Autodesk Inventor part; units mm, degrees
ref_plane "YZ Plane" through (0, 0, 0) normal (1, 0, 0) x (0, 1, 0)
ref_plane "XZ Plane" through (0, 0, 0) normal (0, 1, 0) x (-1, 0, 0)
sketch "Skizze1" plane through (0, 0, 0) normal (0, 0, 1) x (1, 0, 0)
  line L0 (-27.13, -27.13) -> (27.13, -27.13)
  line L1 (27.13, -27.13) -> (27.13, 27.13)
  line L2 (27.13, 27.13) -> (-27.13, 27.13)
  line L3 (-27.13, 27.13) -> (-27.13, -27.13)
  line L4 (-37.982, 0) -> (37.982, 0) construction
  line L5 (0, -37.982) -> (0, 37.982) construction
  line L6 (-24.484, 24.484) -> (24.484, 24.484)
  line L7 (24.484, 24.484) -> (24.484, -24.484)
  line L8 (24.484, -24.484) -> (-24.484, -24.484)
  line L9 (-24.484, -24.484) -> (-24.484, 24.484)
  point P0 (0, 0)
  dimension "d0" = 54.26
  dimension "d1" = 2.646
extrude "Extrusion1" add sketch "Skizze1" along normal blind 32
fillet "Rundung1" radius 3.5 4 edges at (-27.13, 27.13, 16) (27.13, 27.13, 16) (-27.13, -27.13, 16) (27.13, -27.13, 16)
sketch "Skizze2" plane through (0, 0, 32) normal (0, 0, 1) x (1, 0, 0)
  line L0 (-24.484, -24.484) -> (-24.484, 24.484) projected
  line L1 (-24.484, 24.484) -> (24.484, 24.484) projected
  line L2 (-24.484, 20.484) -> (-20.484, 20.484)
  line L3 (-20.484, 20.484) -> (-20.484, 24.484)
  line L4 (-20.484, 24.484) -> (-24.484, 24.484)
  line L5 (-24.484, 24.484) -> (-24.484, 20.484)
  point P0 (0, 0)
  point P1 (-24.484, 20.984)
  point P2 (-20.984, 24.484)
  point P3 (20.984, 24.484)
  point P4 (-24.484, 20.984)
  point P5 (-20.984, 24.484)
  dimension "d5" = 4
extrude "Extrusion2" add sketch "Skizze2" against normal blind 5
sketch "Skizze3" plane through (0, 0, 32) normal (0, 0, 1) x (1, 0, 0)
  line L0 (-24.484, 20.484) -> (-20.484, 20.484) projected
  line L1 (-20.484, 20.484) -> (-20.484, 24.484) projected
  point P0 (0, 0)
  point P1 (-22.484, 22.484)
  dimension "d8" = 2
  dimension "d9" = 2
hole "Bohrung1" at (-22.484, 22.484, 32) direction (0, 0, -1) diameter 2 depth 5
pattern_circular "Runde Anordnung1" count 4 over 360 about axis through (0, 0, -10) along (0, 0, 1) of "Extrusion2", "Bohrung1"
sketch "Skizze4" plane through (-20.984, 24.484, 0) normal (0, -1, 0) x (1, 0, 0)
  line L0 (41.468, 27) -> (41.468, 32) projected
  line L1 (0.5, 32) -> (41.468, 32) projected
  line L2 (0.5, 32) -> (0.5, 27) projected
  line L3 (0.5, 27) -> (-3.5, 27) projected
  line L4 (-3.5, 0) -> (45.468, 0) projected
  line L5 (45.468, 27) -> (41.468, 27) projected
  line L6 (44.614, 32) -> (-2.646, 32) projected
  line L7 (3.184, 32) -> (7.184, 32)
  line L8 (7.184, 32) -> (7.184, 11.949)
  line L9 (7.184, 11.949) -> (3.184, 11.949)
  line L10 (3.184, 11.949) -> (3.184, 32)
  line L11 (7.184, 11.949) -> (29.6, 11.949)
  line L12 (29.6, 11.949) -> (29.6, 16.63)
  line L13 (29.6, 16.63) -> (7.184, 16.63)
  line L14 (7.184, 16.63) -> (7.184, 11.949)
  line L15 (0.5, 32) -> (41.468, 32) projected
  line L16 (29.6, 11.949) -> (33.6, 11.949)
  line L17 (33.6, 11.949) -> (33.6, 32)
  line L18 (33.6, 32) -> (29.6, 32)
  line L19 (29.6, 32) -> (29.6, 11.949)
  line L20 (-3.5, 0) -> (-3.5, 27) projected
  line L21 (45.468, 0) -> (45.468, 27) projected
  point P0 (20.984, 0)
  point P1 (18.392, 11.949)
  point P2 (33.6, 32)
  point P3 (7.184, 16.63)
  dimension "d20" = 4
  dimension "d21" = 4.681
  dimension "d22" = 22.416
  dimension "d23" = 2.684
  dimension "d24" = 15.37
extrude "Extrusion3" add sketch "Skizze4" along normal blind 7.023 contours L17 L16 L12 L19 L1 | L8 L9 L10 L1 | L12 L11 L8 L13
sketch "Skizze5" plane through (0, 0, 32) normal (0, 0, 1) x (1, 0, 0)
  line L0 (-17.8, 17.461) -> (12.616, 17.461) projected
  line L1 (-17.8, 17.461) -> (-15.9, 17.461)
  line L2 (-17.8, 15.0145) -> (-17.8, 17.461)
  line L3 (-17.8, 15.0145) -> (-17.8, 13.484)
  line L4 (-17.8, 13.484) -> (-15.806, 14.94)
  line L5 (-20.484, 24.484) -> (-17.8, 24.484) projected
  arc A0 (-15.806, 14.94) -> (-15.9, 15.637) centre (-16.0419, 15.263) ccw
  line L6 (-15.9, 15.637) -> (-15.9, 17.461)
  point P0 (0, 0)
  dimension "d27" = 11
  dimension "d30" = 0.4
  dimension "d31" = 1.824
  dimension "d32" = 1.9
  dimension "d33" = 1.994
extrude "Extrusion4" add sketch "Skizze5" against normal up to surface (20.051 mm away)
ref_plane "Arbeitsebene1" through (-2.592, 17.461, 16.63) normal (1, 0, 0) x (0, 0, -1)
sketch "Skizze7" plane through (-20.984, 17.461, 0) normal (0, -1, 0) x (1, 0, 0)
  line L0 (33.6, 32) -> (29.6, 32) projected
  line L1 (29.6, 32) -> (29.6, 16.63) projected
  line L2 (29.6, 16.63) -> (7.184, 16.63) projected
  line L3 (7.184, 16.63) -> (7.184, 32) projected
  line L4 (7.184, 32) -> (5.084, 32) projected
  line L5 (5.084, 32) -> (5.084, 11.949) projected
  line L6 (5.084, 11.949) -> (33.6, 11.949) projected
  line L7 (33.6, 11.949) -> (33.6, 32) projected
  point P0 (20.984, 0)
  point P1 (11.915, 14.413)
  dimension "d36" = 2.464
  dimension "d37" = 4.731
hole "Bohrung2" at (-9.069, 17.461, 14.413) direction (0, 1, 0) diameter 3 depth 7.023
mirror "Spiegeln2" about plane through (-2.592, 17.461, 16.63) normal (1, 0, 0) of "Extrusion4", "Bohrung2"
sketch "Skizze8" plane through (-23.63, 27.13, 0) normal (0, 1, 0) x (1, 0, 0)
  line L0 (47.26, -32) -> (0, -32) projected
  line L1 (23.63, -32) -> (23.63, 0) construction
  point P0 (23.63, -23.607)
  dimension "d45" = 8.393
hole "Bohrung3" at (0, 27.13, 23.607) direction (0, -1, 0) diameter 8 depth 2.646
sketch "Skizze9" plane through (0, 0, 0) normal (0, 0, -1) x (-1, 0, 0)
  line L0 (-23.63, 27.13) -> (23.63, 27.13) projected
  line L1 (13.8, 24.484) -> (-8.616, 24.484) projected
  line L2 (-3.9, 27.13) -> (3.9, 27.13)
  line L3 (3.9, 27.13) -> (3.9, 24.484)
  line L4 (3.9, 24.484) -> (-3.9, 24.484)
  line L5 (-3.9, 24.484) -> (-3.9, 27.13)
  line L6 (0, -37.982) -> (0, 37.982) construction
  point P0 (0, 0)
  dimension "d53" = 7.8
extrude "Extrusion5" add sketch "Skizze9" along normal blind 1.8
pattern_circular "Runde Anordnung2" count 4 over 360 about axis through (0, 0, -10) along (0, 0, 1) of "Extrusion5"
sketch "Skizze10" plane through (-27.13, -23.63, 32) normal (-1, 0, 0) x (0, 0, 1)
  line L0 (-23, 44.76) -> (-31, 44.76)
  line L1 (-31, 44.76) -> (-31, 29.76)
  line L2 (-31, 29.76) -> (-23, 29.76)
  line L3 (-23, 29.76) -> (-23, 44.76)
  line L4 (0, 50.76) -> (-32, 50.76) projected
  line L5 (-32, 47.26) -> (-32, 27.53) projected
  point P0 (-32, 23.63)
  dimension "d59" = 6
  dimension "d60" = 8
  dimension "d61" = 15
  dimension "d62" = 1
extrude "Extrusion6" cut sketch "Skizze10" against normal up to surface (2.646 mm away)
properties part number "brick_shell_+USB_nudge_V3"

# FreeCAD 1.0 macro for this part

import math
import FreeCAD as App
import Part
import Sketcher
from FreeCAD import Vector
Q = App.Units.Quantity


def edges_at(feature, points):
    """Names of the edges that pass closest to the given points."""
    edges = feature.Shape.Edges
    near = lambda p: min(range(len(edges)), key=lambda i: edges[i].distToShape(Part.Vertex(*p))[0])
    return sorted({f"Edge{near(p) + 1}" for p in points})


def add_polygon(sketch, points):
    """Adds a closed chain of lines whose ends are joined by coincident constraints."""
    first, n = sketch.GeometryCount, len(points)
    for a, b in zip(points, points[1:] + points[:1]):
        sketch.addGeometry(Part.LineSegment(App.Vector(*a, 0), App.Vector(*b, 0)), False)
    for i in range(n):
        sketch.addConstraint(Sketcher.Constraint("Coincident", first + i, 2, first + (i + 1) % n, 1))

doc = App.newDocument("Part")
body = doc.addObject("PartDesign::Body", "Body")

# Sketch on XY plane
sketch1 = body.newObject("Sketcher::SketchObject", "Sketch")
sketch1.AttachmentSupport = (doc.getObject("XY_Plane"), [""])
sketch1.MapMode = "FlatFace"
add_polygon(sketch1, [(-27.13, 27.13), (-27.13, -27.13), (27.13, -27.13), (27.13, 27.13)])  # lines 0-3
add_polygon(sketch1, [(-24.484, -24.484), (-24.484, 24.484), (24.484, 24.484), (24.484, -24.484)])  # lines 4-7
sketch1.addConstraint(Sketcher.Constraint("Vertical", 0))
sketch1.addConstraint(Sketcher.Constraint("Horizontal", 1))
sketch1.addConstraint(Sketcher.Constraint("Vertical", 2))
sketch1.addConstraint(Sketcher.Constraint("Horizontal", 3))
sketch1.addConstraint(Sketcher.Constraint("Vertical", 4))
sketch1.addConstraint(Sketcher.Constraint("Horizontal", 5))
sketch1.addConstraint(Sketcher.Constraint("Vertical", 6))
sketch1.addConstraint(Sketcher.Constraint("Horizontal", 7))
sketch1.addConstraint(Sketcher.Constraint("Symmetric", 0, 2, 2, 2, -1, 1))
sketch1.addConstraint(Sketcher.Constraint("Symmetric", 4, 2, 6, 2, -1, 1))
sketch1.addConstraint(Sketcher.Constraint("Equal", 3, 0))
sketch1.addConstraint(Sketcher.Constraint("Equal", 7, 4))
sketch1.addConstraint(Sketcher.Constraint("DistanceX", 1, 1, 1, 2, Q("54.26 mm")))
sketch1.addConstraint(Sketcher.Constraint("DistanceX", 3, 2, 4, 2, Q("2.646 mm")))
pad1 = body.newObject("PartDesign::Pad", "Pad")
pad1.Profile = sketch1
pad1.Length = 32
doc.recompute()

fillet = body.newObject("PartDesign::Fillet", "Fillet")
fillet.Base = (pad1, edges_at(pad1, [
    (-27.13, 27.13, 16),
    (27.13, 27.13, 16),
    (-27.13, -27.13, 16),
    (27.13, -27.13, 16),
]))
fillet.Radius = 3.5

# Sketch on XY plane
sketch2 = body.newObject("Sketcher::SketchObject", "Sketch001")
sketch2.AttachmentSupport = (doc.getObject("XY_Plane"), [""])
sketch2.MapMode = "FlatFace"
sketch2.AttachmentOffset = App.Placement(Vector(0, 0, 32), App.Rotation())
add_polygon(sketch2, [(-24.484, 24.484), (-24.484, 20.484), (-20.484, 20.484), (-20.484, 24.484)])  # lines 0-3
sketch2.addConstraint(Sketcher.Constraint("Vertical", 0))
sketch2.addConstraint(Sketcher.Constraint("Horizontal", 1))
sketch2.addConstraint(Sketcher.Constraint("Vertical", 2))
sketch2.addConstraint(Sketcher.Constraint("Horizontal", 3))
sketch2.addConstraint(Sketcher.Constraint("Equal", 3, 0))
sketch2.addConstraint(Sketcher.Constraint("DistanceX", 1, 1, 1, 2, Q("4 mm")))
sketch2.addConstraint(Sketcher.Constraint("DistanceX", 0, 2, -1, 1, Q("24.484 mm")))
sketch2.addConstraint(Sketcher.Constraint("DistanceY", -1, 1, 0, 2, Q("20.484 mm")))
pad2 = body.newObject("PartDesign::Pad", "Pad001")
pad2.Profile = sketch2
pad2.Length = 5
pad2.Reversed = True

# Sketch on XY plane
sketch3 = body.newObject("Sketcher::SketchObject", "Sketch002")
sketch3.AttachmentSupport = (doc.getObject("XY_Plane"), [""])
sketch3.MapMode = "FlatFace"
sketch3.AttachmentOffset = App.Placement(Vector(0, 0, 32), App.Rotation())
sketch3.addGeometry(Part.Circle(Vector(-22.484, 22.484, 0), Vector(0, 0, 1), 1), False)
sketch3.addConstraint(Sketcher.Constraint("Diameter", 0, Q("2 mm")))
sketch3.addConstraint(Sketcher.Constraint("DistanceX", 0, 3, -1, 1, Q("22.484 mm")))
sketch3.addConstraint(Sketcher.Constraint("DistanceY", -1, 1, 0, 3, Q("22.484 mm")))
doc.recompute()
hole = body.newObject("PartDesign::Hole", "Hole")
hole.Profile = sketch3
hole.ThreadType = "None"
hole.Diameter = 2
hole.DepthType = "Dimension"
hole.Depth = 5
hole.DrillPoint = "Flat"
doc.recompute()

polarpattern = body.newObject("PartDesign::PolarPattern", "PolarPattern")
polarpattern.Originals = [pad2, hole]
polarpattern.Axis = (doc.getObject("Z_Axis"), [""])
polarpattern.Angle = 360
polarpattern.Occurrences = 4
body.Tip = polarpattern

# Sketch on XZ plane
sketch4 = body.newObject("Sketcher::SketchObject", "Sketch003")
sketch4.AttachmentSupport = (doc.getObject("XZ_Plane"), [""])
sketch4.MapMode = "FlatFace"
sketch4.AttachmentOffset = App.Placement(Vector(0, 0, -24.484), App.Rotation())
add_polygon(sketch4, [(12.616, 11.949), (12.616, 32), (8.616, 32), (8.616, 16.63), (-13.8, 16.63), (-13.8, 32), (-17.8, 32), (-17.8, 11.949)])  # lines 0-7
sketch4.addConstraint(Sketcher.Constraint("Vertical", 0))
sketch4.addConstraint(Sketcher.Constraint("Horizontal", 1))
sketch4.addConstraint(Sketcher.Constraint("Vertical", 2))
sketch4.addConstraint(Sketcher.Constraint("Horizontal", 3))
sketch4.addConstraint(Sketcher.Constraint("Vertical", 4))
sketch4.addConstraint(Sketcher.Constraint("Horizontal", 5))
sketch4.addConstraint(Sketcher.Constraint("Vertical", 6))
sketch4.addConstraint(Sketcher.Constraint("Horizontal", 7))
sketch4.addConstraint(Sketcher.Constraint("Horizontal", 1, 2, 4, 2))
sketch4.addConstraint(Sketcher.Constraint("Equal", 1, 5))
sketch4.addConstraint(Sketcher.Constraint("DistanceX", 1, 2, 1, 1, Q("4 mm")))
sketch4.addConstraint(Sketcher.Constraint("DistanceY", 2, 2, 2, 1, Q("15.37 mm")))
sketch4.addConstraint(Sketcher.Constraint("DistanceX", 3, 2, 3, 1, Q("22.416 mm")))
sketch4.addConstraint(Sketcher.Constraint("DistanceY", -1, 1, 0, 2, Q("32 mm")))
sketch4.addConstraint(Sketcher.Constraint("DistanceY", 6, 2, 3, 2, Q("4.681 mm")))
sketch4.addConstraint(Sketcher.Constraint("DistanceX", 3, 2, -1, 1, Q("13.8 mm")))
pad3 = body.newObject("PartDesign::Pad", "Pad002")
pad3.Profile = sketch4
pad3.Length = 7.023

# Sketch on XY plane
sketch5 = body.newObject("Sketcher::SketchObject", "Sketch004")
sketch5.AttachmentSupport = (doc.getObject("XY_Plane"), [""])
sketch5.MapMode = "FlatFace"
sketch5.AttachmentOffset = App.Placement(Vector(0, 0, 32), App.Rotation())
sketch5.addGeometry(Part.LineSegment(Vector(-15.9, 17.461, 0), Vector(-17.8, 17.461, 0)), False)
sketch5.addGeometry(Part.LineSegment(Vector(-17.8, 17.461, 0), Vector(-17.8, 13.484, 0)), False)
sketch5.addGeometry(Part.LineSegment(Vector(-17.8, 13.484, 0), Vector(-15.806, 14.94, 0)), False)
sketch5.addGeometry(Part.ArcOfCircle(Part.Circle(Vector(-16.0419, 15.263, 0), Vector(0, 0, 1), 0.399972), math.radians(-53.857829), math.radians(69.222665)), False)
sketch5.addGeometry(Part.LineSegment(Vector(-15.9, 15.637, 0), Vector(-15.9, 17.461, 0)), False)
sketch5.addConstraint(Sketcher.Constraint("Coincident", 0, 2, 1, 1))
sketch5.addConstraint(Sketcher.Constraint("Coincident", 1, 2, 2, 1))
sketch5.addConstraint(Sketcher.Constraint("Tangent", 2, 2, 3, 1))
sketch5.addConstraint(Sketcher.Constraint("Coincident", 3, 2, 4, 1))
sketch5.addConstraint(Sketcher.Constraint("Coincident", 4, 2, 0, 1))
sketch5.addConstraint(Sketcher.Constraint("Horizontal", 0))
sketch5.addConstraint(Sketcher.Constraint("Vertical", 1))
sketch5.addConstraint(Sketcher.Constraint("Vertical", 4))
sketch5.addConstraint(Sketcher.Constraint("Radius", 3, Q("0.4 mm")))
sketch5.addConstraint(Sketcher.Constraint("DistanceX", 0, 2, 0, 1, Q("1.9 mm")))
sketch5.addConstraint(Sketcher.Constraint("DistanceY", 4, 1, 4, 2, Q("1.824 mm")))
sketch5.addConstraint(Sketcher.Constraint("DistanceX", 1, 2, 2, 2, Q("1.994 mm")))
sketch5.addConstraint(Sketcher.Constraint("DistanceX", 0, 2, -1, 1, Q("17.8 mm")))
sketch5.addConstraint(Sketcher.Constraint("DistanceY", 1, 2, 1, 1, Q("3.977 mm")))
sketch5.addConstraint(Sketcher.Constraint("DistanceY", -1, 1, 2, 2, Q("14.94 mm")))
pad4 = body.newObject("PartDesign::Pad", "Pad003")
pad4.Profile = sketch5
pad4.Length = 20.051
pad4.Reversed = True

# Sketch on XZ plane
sketch6 = body.newObject("Sketcher::SketchObject", "Sketch005")
sketch6.AttachmentSupport = (doc.getObject("XZ_Plane"), [""])
sketch6.MapMode = "FlatFace"
sketch6.AttachmentOffset = App.Placement(Vector(0, 0, -17.461), App.Rotation())
sketch6.addGeometry(Part.Circle(Vector(-9.069, 14.413, 0), Vector(0, 0, 1), 1.5), False)
sketch6.addConstraint(Sketcher.Constraint("Diameter", 0, Q("3 mm")))
sketch6.addConstraint(Sketcher.Constraint("DistanceX", 0, 3, -1, 1, Q("9.069 mm")))
sketch6.addConstraint(Sketcher.Constraint("DistanceY", -1, 1, 0, 3, Q("14.413 mm")))
doc.recompute()
hole2 = body.newObject("PartDesign::Hole", "Hole001")
hole2.Profile = sketch6
hole2.ThreadType = "None"
hole2.Diameter = 3
hole2.DepthType = "Dimension"
hole2.Depth = 7.023
hole2.DrillPoint = "Flat"
doc.recompute()

datumplane = body.newObject("PartDesign::Plane", "DatumPlane")
datumplane.AttachmentSupport = (doc.getObject("YZ_Plane"), [""])
datumplane.MapMode = "FlatFace"
datumplane.AttachmentOffset = App.Placement(Vector(0, 0, -2.592), App.Rotation())
mirrored = body.newObject("PartDesign::Mirrored", "Mirrored")
mirrored.Originals = [pad4, hole2]
mirrored.MirrorPlane = (datumplane, [""])
body.Tip = mirrored

# Sketch on XZ plane
sketch7 = body.newObject("Sketcher::SketchObject", "Sketch006")
sketch7.AttachmentSupport = (doc.getObject("XZ_Plane"), [""])
sketch7.MapMode = "FlatFace"
sketch7.AttachmentOffset = App.Placement(Vector(0, 0, -27.13), App.Rotation())
sketch7.addGeometry(Part.Circle(Vector(0, 23.607, 0), Vector(0, 0, 1), 4), False)
sketch7.addConstraint(Sketcher.Constraint("PointOnObject", 0, 3, -2))
sketch7.addConstraint(Sketcher.Constraint("Diameter", 0, Q("8 mm")))
sketch7.addConstraint(Sketcher.Constraint("DistanceY", -1, 1, 0, 3, Q("23.607 mm")))
doc.recompute()
hole3 = body.newObject("PartDesign::Hole", "Hole002")
hole3.Profile = sketch7
hole3.ThreadType = "None"
hole3.Diameter = 8
hole3.DepthType = "Dimension"
hole3.Depth = 2.646
hole3.DrillPoint = "Flat"
hole3.Reversed = True

# Sketch on XY plane
sketch8 = body.newObject("Sketcher::SketchObject", "Sketch007")
sketch8.AttachmentSupport = (doc.getObject("XY_Plane"), [""])
sketch8.MapMode = "FlatFace"
add_polygon(sketch8, [(-3.9, 27.13), (3.9, 27.13), (3.9, 24.484), (-3.9, 24.484)])  # lines 0-3
sketch8.addConstraint(Sketcher.Constraint("Horizontal", 0))
sketch8.addConstraint(Sketcher.Constraint("Vertical", 1))
sketch8.addConstraint(Sketcher.Constraint("Horizontal", 2))
sketch8.addConstraint(Sketcher.Constraint("Vertical", 3))
sketch8.addConstraint(Sketcher.Constraint("DistanceX", 0, 1, 0, 2, Q("7.8 mm")))
sketch8.addConstraint(Sketcher.Constraint("DistanceX", -1, 1, 0, 2, Q("3.9 mm")))
sketch8.addConstraint(Sketcher.Constraint("DistanceY", 1, 2, 1, 1, Q("2.646 mm")))
sketch8.addConstraint(Sketcher.Constraint("DistanceY", -1, 1, 0, 2, Q("27.13 mm")))
pad5 = body.newObject("PartDesign::Pad", "Pad004")
pad5.Profile = sketch8
pad5.Length = 1.8
pad5.Reversed = True
doc.recompute()

polarpattern2 = body.newObject("PartDesign::PolarPattern", "PolarPattern001")
polarpattern2.Originals = [pad5]
polarpattern2.Axis = (doc.getObject("Z_Axis"), [""])
polarpattern2.Angle = 360
polarpattern2.Occurrences = 4
body.Tip = polarpattern2

# Sketch on YZ plane
sketch9 = body.newObject("Sketcher::SketchObject", "Sketch008")
sketch9.AttachmentSupport = (doc.getObject("YZ_Plane"), [""])
sketch9.MapMode = "FlatFace"
sketch9.AttachmentOffset = App.Placement(Vector(0, 0, -27.13), App.Rotation())
add_polygon(sketch9, [(6.13, 9), (21.13, 9), (21.13, 1), (6.13, 1)])  # lines 0-3
sketch9.addConstraint(Sketcher.Constraint("Horizontal", 0))
sketch9.addConstraint(Sketcher.Constraint("Vertical", 1))
sketch9.addConstraint(Sketcher.Constraint("Horizontal", 2))
sketch9.addConstraint(Sketcher.Constraint("Vertical", 3))
sketch9.addConstraint(Sketcher.Constraint("DistanceX", 0, 1, 0, 2, Q("15 mm")))
sketch9.addConstraint(Sketcher.Constraint("DistanceY", 1, 2, 1, 1, Q("8 mm")))
sketch9.addConstraint(Sketcher.Constraint("DistanceY", -1, 1, 1, 2, Q("1 mm")))
sketch9.addConstraint(Sketcher.Constraint("DistanceX", -1, 1, 0, 2, Q("21.13 mm")))
pocket1 = body.newObject("PartDesign::Pocket", "Pocket")
pocket1.Profile = sketch9
pocket1.Length = 2.646
pocket1.Reversed = True

doc.recompute()
